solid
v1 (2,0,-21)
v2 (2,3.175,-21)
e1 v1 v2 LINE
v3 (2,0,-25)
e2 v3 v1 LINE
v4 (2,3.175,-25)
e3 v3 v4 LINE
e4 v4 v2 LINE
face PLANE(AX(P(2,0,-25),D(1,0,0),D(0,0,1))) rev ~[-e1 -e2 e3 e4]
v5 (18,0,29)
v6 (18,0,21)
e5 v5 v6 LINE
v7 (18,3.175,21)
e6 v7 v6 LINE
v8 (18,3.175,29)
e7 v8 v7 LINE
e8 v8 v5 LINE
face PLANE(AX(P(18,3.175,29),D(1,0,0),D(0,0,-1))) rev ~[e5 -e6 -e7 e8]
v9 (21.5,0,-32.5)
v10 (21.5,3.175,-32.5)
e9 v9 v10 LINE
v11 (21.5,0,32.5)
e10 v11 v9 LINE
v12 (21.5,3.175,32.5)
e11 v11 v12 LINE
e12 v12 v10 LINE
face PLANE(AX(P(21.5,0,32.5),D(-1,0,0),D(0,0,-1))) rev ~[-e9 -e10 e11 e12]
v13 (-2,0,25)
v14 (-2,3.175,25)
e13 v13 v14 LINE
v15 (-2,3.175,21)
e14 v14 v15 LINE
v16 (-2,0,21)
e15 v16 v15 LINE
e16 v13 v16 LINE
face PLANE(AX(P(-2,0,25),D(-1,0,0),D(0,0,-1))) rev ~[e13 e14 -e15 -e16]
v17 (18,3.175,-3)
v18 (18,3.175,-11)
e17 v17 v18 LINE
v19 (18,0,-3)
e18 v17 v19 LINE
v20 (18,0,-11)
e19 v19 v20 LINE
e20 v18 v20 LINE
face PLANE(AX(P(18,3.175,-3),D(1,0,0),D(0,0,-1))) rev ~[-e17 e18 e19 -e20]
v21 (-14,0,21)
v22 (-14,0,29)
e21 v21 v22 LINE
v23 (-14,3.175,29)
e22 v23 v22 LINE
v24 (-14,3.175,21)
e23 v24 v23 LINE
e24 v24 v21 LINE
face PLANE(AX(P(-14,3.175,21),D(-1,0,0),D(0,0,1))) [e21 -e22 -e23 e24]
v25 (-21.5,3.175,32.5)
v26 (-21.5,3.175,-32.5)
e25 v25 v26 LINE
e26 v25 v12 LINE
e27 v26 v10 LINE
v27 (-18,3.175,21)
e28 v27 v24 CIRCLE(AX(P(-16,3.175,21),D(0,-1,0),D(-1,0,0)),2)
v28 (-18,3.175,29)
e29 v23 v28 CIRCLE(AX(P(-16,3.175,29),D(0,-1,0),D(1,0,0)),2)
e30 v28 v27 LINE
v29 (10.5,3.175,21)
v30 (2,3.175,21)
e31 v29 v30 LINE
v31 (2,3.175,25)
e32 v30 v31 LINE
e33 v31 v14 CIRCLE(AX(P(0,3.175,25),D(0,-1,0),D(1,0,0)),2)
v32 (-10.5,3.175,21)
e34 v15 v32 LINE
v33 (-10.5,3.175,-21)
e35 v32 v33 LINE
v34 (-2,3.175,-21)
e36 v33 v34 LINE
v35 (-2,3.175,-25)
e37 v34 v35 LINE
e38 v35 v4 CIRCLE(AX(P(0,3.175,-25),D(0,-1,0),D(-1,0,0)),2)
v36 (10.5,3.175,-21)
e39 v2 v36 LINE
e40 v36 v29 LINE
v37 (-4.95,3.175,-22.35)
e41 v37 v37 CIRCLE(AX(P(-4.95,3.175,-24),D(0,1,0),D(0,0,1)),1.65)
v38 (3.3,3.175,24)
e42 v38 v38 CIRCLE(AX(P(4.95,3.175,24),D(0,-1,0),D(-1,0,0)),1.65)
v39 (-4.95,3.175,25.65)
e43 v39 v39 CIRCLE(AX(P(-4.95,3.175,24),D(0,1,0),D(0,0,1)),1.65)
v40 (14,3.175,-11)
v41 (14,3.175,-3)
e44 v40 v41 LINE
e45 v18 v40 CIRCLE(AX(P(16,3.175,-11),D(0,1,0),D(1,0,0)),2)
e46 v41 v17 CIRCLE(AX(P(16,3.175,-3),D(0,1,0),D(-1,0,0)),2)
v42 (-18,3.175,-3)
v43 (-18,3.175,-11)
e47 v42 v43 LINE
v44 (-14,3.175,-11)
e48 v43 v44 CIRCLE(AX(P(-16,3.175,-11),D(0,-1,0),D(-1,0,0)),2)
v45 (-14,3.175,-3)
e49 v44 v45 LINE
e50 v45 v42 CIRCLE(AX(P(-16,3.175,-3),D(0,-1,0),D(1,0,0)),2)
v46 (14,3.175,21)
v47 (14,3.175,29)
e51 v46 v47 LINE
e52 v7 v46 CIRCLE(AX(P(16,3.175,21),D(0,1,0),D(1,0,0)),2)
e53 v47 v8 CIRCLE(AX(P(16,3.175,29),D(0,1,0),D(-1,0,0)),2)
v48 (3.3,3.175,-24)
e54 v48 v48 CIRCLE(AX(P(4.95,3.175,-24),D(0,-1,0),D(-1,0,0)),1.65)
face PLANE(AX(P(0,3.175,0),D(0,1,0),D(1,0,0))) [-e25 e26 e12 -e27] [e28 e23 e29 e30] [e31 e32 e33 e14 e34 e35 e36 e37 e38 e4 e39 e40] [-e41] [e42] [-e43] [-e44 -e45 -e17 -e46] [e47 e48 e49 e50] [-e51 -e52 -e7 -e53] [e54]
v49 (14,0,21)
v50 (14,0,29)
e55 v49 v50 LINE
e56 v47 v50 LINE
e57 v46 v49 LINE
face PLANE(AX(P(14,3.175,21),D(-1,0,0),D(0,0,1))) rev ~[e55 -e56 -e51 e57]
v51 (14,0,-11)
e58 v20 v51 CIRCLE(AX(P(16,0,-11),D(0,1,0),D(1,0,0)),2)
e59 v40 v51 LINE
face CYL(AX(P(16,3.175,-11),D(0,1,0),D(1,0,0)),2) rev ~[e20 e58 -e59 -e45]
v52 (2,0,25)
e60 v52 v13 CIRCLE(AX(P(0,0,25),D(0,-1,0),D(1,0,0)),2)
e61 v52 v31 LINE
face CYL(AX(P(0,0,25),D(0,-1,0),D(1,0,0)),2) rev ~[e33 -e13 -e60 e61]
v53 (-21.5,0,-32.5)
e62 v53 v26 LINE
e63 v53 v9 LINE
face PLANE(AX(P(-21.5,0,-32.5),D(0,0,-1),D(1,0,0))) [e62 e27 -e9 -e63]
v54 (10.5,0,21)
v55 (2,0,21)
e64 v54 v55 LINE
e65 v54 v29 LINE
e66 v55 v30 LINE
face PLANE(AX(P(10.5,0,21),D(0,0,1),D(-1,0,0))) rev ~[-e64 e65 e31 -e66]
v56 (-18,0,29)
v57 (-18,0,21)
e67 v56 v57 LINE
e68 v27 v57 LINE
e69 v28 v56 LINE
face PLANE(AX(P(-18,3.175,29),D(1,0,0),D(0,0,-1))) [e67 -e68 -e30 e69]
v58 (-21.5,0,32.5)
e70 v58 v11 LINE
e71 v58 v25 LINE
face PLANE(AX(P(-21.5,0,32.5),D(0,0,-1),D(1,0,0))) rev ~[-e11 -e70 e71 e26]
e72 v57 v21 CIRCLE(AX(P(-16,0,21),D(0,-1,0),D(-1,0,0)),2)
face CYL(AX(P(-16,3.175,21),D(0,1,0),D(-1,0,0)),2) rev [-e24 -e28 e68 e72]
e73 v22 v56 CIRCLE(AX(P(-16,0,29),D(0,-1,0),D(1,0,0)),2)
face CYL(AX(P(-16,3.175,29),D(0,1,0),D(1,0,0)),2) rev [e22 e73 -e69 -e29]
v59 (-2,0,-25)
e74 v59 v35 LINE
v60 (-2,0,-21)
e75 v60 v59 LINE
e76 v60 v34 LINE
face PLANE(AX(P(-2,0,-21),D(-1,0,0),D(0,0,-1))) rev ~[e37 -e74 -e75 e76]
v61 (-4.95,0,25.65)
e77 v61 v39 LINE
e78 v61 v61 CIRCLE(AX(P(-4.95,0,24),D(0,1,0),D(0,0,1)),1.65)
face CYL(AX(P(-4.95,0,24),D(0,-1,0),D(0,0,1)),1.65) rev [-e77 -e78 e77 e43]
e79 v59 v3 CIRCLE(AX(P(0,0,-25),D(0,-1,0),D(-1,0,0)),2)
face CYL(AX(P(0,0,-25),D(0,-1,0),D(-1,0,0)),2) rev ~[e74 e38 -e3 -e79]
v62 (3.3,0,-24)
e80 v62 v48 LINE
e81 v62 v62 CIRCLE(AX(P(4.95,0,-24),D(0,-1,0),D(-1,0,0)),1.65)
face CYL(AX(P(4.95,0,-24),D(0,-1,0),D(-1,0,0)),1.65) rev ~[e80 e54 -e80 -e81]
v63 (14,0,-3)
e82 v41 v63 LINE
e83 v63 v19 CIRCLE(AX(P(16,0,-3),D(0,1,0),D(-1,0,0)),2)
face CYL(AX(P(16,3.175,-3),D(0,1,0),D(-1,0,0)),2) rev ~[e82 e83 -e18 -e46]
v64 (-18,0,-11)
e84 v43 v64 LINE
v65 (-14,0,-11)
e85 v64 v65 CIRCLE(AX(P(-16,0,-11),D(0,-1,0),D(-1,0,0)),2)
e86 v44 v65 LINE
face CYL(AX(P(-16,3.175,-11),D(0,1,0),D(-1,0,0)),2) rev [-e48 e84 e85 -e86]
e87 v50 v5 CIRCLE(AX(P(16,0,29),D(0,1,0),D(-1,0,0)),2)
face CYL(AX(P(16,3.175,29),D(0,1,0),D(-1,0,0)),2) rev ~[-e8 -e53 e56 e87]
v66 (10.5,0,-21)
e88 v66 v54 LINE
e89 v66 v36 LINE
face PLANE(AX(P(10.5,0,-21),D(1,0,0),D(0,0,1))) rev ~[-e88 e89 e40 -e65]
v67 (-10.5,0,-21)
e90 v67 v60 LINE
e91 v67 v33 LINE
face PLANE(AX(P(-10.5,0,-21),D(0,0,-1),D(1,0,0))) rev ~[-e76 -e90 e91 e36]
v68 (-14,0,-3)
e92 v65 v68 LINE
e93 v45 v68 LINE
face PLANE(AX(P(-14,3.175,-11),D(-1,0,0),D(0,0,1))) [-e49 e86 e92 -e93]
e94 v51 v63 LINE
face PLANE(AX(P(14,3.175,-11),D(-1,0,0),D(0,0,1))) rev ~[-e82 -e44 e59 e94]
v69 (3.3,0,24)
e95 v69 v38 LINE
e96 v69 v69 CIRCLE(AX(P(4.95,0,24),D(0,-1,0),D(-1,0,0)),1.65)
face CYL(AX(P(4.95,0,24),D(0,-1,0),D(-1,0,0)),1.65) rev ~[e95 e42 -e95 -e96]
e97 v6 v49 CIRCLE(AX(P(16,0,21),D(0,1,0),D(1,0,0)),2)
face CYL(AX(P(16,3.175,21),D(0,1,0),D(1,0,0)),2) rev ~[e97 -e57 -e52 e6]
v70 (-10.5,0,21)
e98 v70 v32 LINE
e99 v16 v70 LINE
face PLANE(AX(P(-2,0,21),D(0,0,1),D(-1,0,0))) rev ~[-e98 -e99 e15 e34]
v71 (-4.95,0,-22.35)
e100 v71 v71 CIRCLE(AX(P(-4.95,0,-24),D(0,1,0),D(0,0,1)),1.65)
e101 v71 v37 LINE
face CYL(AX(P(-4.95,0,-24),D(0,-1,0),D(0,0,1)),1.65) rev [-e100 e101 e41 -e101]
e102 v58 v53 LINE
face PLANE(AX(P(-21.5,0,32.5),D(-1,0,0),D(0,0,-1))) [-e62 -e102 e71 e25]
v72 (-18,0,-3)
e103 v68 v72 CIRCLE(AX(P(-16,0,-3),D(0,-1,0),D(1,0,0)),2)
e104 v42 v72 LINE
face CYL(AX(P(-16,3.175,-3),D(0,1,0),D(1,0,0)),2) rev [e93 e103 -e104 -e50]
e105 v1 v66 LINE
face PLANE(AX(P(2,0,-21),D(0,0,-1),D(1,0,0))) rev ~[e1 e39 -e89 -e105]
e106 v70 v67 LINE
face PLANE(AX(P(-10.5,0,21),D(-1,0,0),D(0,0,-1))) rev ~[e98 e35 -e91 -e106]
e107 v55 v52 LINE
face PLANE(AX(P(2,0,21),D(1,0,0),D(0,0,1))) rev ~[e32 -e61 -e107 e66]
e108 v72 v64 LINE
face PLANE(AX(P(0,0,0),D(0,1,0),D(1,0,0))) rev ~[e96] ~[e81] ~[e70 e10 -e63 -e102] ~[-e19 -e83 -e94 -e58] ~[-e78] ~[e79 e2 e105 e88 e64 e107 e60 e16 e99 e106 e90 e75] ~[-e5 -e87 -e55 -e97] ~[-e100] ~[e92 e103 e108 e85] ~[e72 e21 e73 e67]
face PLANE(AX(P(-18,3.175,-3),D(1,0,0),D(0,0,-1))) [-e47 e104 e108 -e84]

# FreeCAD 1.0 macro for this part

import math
import FreeCAD as App
import Part
import Sketcher

V = App.Vector


def add_polygon(sketch, points):
    """Adds a closed chain of lines whose ends are joined by coincident constraints."""
    first, n = sketch.GeometryCount, len(points)
    for a, b in zip(points, points[1:] + points[:1]):
        sketch.addGeometry(Part.LineSegment(App.Vector(*a, 0), App.Vector(*b, 0)), False)
    for i in range(n):
        sketch.addConstraint(Sketcher.Constraint("Coincident", first + i, 2, first + (i + 1) % n, 1))

doc = App.newDocument("Part")
body = doc.addObject("PartDesign::Body", "Body")

# Sketch on XZ plane
sketch1 = body.newObject("Sketcher::SketchObject", "Sketch")
sketch1.AttachmentSupport = (doc.getObject("XZ_Plane"), [""])
sketch1.MapMode = "FlatFace"
add_polygon(sketch1, [(-21.5, -32.5), (-21.5, 32.5), (21.5, 32.5), (21.5, -32.5)])  # lines 0-3
sketch1.addGeometry(Part.Circle(V(-5, 24, 0), V(0, 0, 1), 1.6), False)  # 4
sketch1.addGeometry(Part.Circle(V(5, 24, 0), V(0, 0, 1), 1.6), False)  # 5
sketch1.addGeometry(Part.Circle(V(-5, -24, 0), V(0, 0, 1), 1.6), False)  # 6
sketch1.addGeometry(Part.LineSegment(V(-10.5, 21, 0), V(-10.5, -21, 0)), False)  # 7
sketch1.addGeometry(Part.LineSegment(V(-10.5, -21, 0), V(-2, -21, 0)), False)  # 8
sketch1.addGeometry(Part.LineSegment(V(-2, -21, 0), V(-2, -25, 0)), False)  # 9
sketch1.addGeometry(Part.ArcOfCircle(Part.Circle(V(0, -25, 0), V(0, 0, 1), 2), math.radians(180), math.radians(360)), False)  # 10
sketch1.addGeometry(Part.LineSegment(V(2, -25, 0), V(2, -21, 0)), False)  # 11
sketch1.addGeometry(Part.LineSegment(V(2, -21, 0), V(10.5, -21, 0)), False)  # 12
sketch1.addGeometry(Part.LineSegment(V(10.5, -21, 0), V(10.5, 21, 0)), False)  # 13
sketch1.addGeometry(Part.LineSegment(V(10.5, 21, 0), V(2, 21, 0)), False)  # 14
sketch1.addGeometry(Part.LineSegment(V(2, 21, 0), V(2, 25, 0)), False)  # 15
sketch1.addGeometry(Part.ArcOfCircle(Part.Circle(V(0, 25, 0), V(0, 0, 1), 2), math.radians(0), math.radians(180)), False)  # 16
sketch1.addGeometry(Part.LineSegment(V(-2, 25, 0), V(-2, 21, 0)), False)  # 17
sketch1.addGeometry(Part.LineSegment(V(-2, 21, 0), V(-10.5, 21, 0)), False)  # 18
sketch1.addGeometry(Part.Circle(V(5, -24, 0), V(0, 0, 1), 1.6), False)  # 19
sketch1.addConstraint([
    Sketcher.Constraint("Coincident", 7, 2, 8, 1),
    Sketcher.Constraint("Coincident", 8, 2, 9, 1),
    Sketcher.Constraint("Tangent", 9, 2, 10, 1),
    Sketcher.Constraint("Tangent", 10, 2, 11, 1),
    Sketcher.Constraint("Coincident", 11, 2, 12, 1),
    Sketcher.Constraint("Coincident", 12, 2, 13, 1),
    Sketcher.Constraint("Coincident", 13, 2, 14, 1),
    Sketcher.Constraint("Coincident", 14, 2, 15, 1),
    Sketcher.Constraint("Tangent", 15, 2, 16, 1),
    Sketcher.Constraint("Tangent", 16, 2, 17, 1),
    Sketcher.Constraint("Coincident", 17, 2, 18, 1),
    Sketcher.Constraint("Coincident", 18, 2, 7, 1),
    Sketcher.Constraint("Vertical", 0),
    Sketcher.Constraint("Horizontal", 1),
    Sketcher.Constraint("Vertical", 2),
    Sketcher.Constraint("Horizontal", 3),
    Sketcher.Constraint("Vertical", 7),
    Sketcher.Constraint("Horizontal", 8),
    Sketcher.Constraint("Vertical", 9),
    Sketcher.Constraint("Vertical", 11),
    Sketcher.Constraint("Horizontal", 12),
    Sketcher.Constraint("Vertical", 13),
    Sketcher.Constraint("Horizontal", 14),
    Sketcher.Constraint("Vertical", 15),
    Sketcher.Constraint("Vertical", 17),
    Sketcher.Constraint("Horizontal", 18),
    Sketcher.Constraint("Equal", 4, 5),
    Sketcher.Constraint("Equal", 5, 6),
    Sketcher.Constraint("Equal", 10, 16),
    Sketcher.Constraint("Equal", 6, 19),
    Sketcher.Constraint("Symmetric", 5, 3, 6, 3, -1, 1),
    Sketcher.Constraint("Symmetric", 10, 3, 16, 3, -1, 1),
    Sketcher.Constraint("Symmetric", 4, 3, 19, 3, -1, 1),
    Sketcher.Constraint("Symmetric", 0, 2, 2, 2, -1, 1),
    Sketcher.Constraint("Symmetric", 7, 2, 13, 2, -1, 1),
    Sketcher.Constraint("Symmetric", 4, 3, 5, 3, -2),
    Sketcher.Constraint("Symmetric", 8, 2, 11, 2, -2),
    Sketcher.Constraint("Horizontal", 14, 2, 17, 2),
    Sketcher.Constraint("Radius", 10, 2.0),
    Sketcher.Constraint("Diameter", 4, 3.3),
    Sketcher.Constraint("DistanceX", 1, 1, 1, 2, 43.0),
    Sketcher.Constraint("DistanceY", 0, 1, 0, 2, 65.0),
    Sketcher.Constraint("DistanceY", 7, 2, 7, 1, 42.0),
    Sketcher.Constraint("DistanceY", 9, 2, 9, 1, 4.0),
    Sketcher.Constraint("DistanceX", 8, 1, 8, 2, 8.5),
    Sketcher.Constraint("DistanceY", -1, 1, 4, 3, 24.0),
    Sketcher.Constraint("DistanceX", 4, 3, 5, 3, 9.9),
])
pad1 = body.newObject("PartDesign::Pad", "Pad")
pad1.Profile = sketch1
pad1.Length = 3.175
pad1.Reversed = True

# Sketch on XZ plane
sketch2 = body.newObject("Sketcher::SketchObject", "Sketch001")
sketch2.AttachmentSupport = (doc.getObject("XZ_Plane"), [""])
sketch2.MapMode = "FlatFace"
sketch2.AttachmentOffset = App.Placement(V(0, 0, -3.175), App.Rotation())
sketch2.addGeometry([
    Part.LineSegment(V(-14, 29, 0), V(-14, 21, 0)),  # 0
    Part.ArcOfCircle(Part.Circle(V(-16, 21, 0), V(0, 0, 1), 2), math.radians(180), math.radians(360)),  # 1
    Part.LineSegment(V(-18, 21, 0), V(-18, 29, 0)),  # 2
    Part.ArcOfCircle(Part.Circle(V(-16, 29, 0), V(0, 0, 1), 2), math.radians(0), math.radians(180)),  # 3
    Part.LineSegment(V(14, 21, 0), V(14, 29, 0)),  # 4
    Part.ArcOfCircle(Part.Circle(V(16, 29, 0), V(0, 0, 1), 2), math.radians(0), math.radians(180)),  # 5
    Part.LineSegment(V(18, 29, 0), V(18, 21, 0)),  # 6
    Part.ArcOfCircle(Part.Circle(V(16, 21, 0), V(0, 0, 1), 2), math.radians(180), math.radians(360)),  # 7
    Part.LineSegment(V(-14, -3, 0), V(-14, -11, 0)),  # 8
    Part.ArcOfCircle(Part.Circle(V(-16, -11, 0), V(0, 0, 1), 2), math.radians(180), math.radians(360)),  # 9
    Part.LineSegment(V(-18, -11, 0), V(-18, -3, 0)),  # 10
    Part.ArcOfCircle(Part.Circle(V(-16, -3, 0), V(0, 0, 1), 2), math.radians(0), math.radians(180)),  # 11
    Part.LineSegment(V(14, -11, 0), V(14, -3, 0)),  # 12
    Part.ArcOfCircle(Part.Circle(V(16, -3, 0), V(0, 0, 1), 2), math.radians(0), math.radians(180)),  # 13
    Part.LineSegment(V(18, -3, 0), V(18, -11, 0)),  # 14
    Part.ArcOfCircle(Part.Circle(V(16, -11, 0), V(0, 0, 1), 2), math.radians(180), math.radians(360)),  # 15
], False)
sketch2.addConstraint([
    Sketcher.Constraint("Tangent", 0, 2, 1, 2),
    Sketcher.Constraint("Tangent", 1, 1, 2, 1),
    Sketcher.Constraint("Tangent", 2, 2, 3, 2),
    Sketcher.Constraint("Tangent", 3, 1, 0, 1),
    Sketcher.Constraint("Tangent", 4, 2, 5, 2),
    Sketcher.Constraint("Tangent", 5, 1, 6, 1),
    Sketcher.Constraint("Tangent", 6, 2, 7, 2),
    Sketcher.Constraint("Tangent", 7, 1, 4, 1),
    Sketcher.Constraint("Tangent", 8, 2, 9, 2),
    Sketcher.Constraint("Tangent", 9, 1, 10, 1),
    Sketcher.Constraint("Tangent", 10, 2, 11, 2),
    Sketcher.Constraint("Tangent", 11, 1, 8, 1),
    Sketcher.Constraint("Tangent", 12, 2, 13, 2),
    Sketcher.Constraint("Tangent", 13, 1, 14, 1),
    Sketcher.Constraint("Tangent", 14, 2, 15, 2),
    Sketcher.Constraint("Tangent", 15, 1, 12, 1),
    Sketcher.Constraint("Vertical", 0),
    Sketcher.Constraint("Vertical", 2),
    Sketcher.Constraint("Vertical", 4),
    Sketcher.Constraint("Vertical", 6),
    Sketcher.Constraint("Vertical", 8),
    Sketcher.Constraint("Vertical", 10),
    Sketcher.Constraint("Vertical", 12),
    Sketcher.Constraint("Vertical", 14),
    Sketcher.Constraint("Equal", 3, 5),
    Sketcher.Constraint("Equal", 7, 9),
    Sketcher.Constraint("Equal", 11, 13),
    Sketcher.Constraint("Symmetric", 3, 3, 5, 3, -2),
    Sketcher.Constraint("Symmetric", 11, 3, 13, 3, -2),
    Sketcher.Constraint("Horizontal", 1, 3, 7, 3),
    Sketcher.Constraint("Horizontal", 9, 3, 15, 3),
    Sketcher.Constraint("Vertical", 3, 3, 9, 3),
    Sketcher.Constraint("Equal", 6, 8),
    Sketcher.Constraint("Radius", 1, 2.0),
    Sketcher.Constraint("DistanceY", 0, 2, 0, 1, 8.0),
    Sketcher.Constraint("DistanceX", 1, 3, -1, 1, 16.0),
    Sketcher.Constraint("DistanceY", -1, 1, 1, 3, 21.0),
    Sketcher.Constraint("DistanceY", 9, 3, -1, 1, 11.0),
])
pocket1 = body.newObject("PartDesign::Pocket", "Pocket")
pocket1.Profile = sketch2
pocket1.Length = 3.175
pocket1.Reversed = True

doc.recompute()
